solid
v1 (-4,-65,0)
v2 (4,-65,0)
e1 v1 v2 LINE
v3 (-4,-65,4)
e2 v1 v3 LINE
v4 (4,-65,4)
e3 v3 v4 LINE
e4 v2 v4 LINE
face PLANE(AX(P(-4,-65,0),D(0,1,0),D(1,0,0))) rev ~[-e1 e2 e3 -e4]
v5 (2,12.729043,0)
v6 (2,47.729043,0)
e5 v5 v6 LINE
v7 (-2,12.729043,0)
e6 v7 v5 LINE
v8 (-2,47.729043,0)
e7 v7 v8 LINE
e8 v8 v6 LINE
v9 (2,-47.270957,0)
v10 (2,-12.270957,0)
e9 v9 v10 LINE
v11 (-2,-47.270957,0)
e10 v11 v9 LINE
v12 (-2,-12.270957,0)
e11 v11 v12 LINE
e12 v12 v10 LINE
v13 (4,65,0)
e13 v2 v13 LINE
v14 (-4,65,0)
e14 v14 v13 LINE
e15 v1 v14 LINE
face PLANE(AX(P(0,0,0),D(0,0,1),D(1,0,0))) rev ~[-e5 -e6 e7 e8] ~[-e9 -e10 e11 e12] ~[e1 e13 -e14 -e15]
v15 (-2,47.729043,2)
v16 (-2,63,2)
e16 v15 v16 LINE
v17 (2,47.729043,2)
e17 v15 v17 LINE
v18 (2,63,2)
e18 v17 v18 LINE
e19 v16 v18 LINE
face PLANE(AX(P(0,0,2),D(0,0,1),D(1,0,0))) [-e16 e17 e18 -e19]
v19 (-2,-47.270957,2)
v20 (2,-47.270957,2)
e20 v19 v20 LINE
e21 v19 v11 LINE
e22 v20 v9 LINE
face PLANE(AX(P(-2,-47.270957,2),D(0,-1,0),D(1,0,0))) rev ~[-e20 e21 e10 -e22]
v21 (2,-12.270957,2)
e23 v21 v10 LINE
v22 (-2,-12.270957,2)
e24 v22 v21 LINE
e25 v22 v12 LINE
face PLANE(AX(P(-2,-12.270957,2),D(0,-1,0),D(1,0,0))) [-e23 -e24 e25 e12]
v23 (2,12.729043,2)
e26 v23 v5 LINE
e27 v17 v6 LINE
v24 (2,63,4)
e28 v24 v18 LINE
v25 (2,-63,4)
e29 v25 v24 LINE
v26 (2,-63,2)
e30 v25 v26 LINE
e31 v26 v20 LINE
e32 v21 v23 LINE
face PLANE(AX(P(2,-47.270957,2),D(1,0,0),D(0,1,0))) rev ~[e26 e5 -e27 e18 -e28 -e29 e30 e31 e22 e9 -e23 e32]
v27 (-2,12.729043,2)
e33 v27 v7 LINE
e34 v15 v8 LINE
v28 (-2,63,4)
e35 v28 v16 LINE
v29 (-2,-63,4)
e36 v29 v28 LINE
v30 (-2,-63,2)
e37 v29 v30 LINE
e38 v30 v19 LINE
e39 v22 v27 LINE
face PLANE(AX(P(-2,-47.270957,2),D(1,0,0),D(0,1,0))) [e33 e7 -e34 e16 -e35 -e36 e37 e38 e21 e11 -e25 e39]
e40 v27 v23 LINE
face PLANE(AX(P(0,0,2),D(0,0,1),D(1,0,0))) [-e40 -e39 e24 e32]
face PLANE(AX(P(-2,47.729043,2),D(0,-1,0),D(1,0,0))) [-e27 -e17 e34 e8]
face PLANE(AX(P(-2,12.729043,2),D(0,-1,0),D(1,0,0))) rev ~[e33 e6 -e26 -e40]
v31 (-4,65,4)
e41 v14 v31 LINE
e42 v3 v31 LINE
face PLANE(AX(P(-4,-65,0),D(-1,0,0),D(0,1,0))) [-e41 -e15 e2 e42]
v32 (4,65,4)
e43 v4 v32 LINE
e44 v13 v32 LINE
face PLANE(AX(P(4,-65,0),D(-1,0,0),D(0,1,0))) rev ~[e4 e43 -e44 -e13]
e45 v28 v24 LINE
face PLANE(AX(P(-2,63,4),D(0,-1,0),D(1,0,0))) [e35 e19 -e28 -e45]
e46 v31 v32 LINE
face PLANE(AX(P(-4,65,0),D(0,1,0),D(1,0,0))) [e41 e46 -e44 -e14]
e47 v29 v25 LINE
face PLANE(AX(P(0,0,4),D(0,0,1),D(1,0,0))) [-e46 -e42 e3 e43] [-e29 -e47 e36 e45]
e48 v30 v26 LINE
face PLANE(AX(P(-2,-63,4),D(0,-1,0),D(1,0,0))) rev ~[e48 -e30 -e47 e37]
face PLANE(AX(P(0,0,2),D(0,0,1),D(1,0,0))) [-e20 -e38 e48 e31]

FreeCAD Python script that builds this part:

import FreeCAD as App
import Part
import Sketcher


def add_polygon(sketch, points):
    """Adds a closed chain of lines whose ends are joined by coincident constraints."""
    first, n = sketch.GeometryCount, len(points)
    for a, b in zip(points, points[1:] + points[:1]):
        sketch.addGeometry(Part.LineSegment(App.Vector(*a, 0), App.Vector(*b, 0)), False)
    for i in range(n):
        sketch.addConstraint(Sketcher.Constraint("Coincident", first + i, 2, first + (i + 1) % n, 1))

doc = App.newDocument("Part")
body = doc.addObject("PartDesign::Body", "Body")

sketch1 = doc.addObject("Sketcher::SketchObject", "Sketch")
body.addObject(sketch1)
sketch1.AttachmentSupport = (doc.XY_Plane, [""])
sketch1.MapMode = "FlatFace"
add_polygon(sketch1, [(-4, 65), (-4, -65), (4, -65), (4, 65)])
sketch1.addConstraint([
    Sketcher.Constraint("Vertical", 0),
    Sketcher.Constraint("Horizontal", 1),
    Sketcher.Constraint("Vertical", 2),
    Sketcher.Constraint("Horizontal", 3),
    Sketcher.Constraint("Symmetric", 0, 2, 2, 2, -1, 1),
    Sketcher.Constraint("DistanceX", 1, 1, 1, 2, 8.0),
    Sketcher.Constraint("DistanceY", 0, 2, 0, 1, 130.0),
])
pad1 = doc.addObject("PartDesign::Pad", "Pad")
body.addObject(pad1)
pad1.Profile = sketch1
pad1.Length = 4

sketch2 = doc.addObject("Sketcher::SketchObject", "Sketch001")
body.addObject(sketch2)
sketch2.AttachmentSupport = (doc.XY_Plane, [""])
sketch2.MapMode = "FlatFace"
sketch2.AttachmentOffset = App.Placement(App.Vector(0, 0, 4), App.Rotation())
add_polygon(sketch2, [(-2, 63), (-2, -63), (2, -63), (2, 63)])
sketch2.addConstraint([
    Sketcher.Constraint("Vertical", 0),
    Sketcher.Constraint("Horizontal", 1),
    Sketcher.Constraint("Vertical", 2),
    Sketcher.Constraint("Horizontal", 3),
    Sketcher.Constraint("Symmetric", 0, 2, 2, 2, -1, 1),
    Sketcher.Constraint("DistanceX", 1, 1, 1, 2, 4.0),
    Sketcher.Constraint("DistanceY", 0, 2, 0, 1, 126.0),
])
pocket1 = doc.addObject("PartDesign::Pocket", "Pocket")
body.addObject(pocket1)
pocket1.Profile = sketch2
pocket1.Length = 2

sketch3 = doc.addObject("Sketcher::SketchObject", "Sketch002")
body.addObject(sketch3)
sketch3.AttachmentSupport = (doc.XY_Plane, [""])
sketch3.MapMode = "FlatFace"
sketch3.AttachmentOffset = App.Placement(App.Vector(0, 0, 2), App.Rotation())
add_polygon(sketch3, [(-2, -12.3), (-2, -47.3), (2, -47.3), (2, -12.3)])
add_polygon(sketch3, [(-2, 47.7), (-2, 12.7), (2, 12.7), (2, 47.7)])
sketch3.addConstraint([
    Sketcher.Constraint("Vertical", 0),
    Sketcher.Constraint("Horizontal", 1),
    Sketcher.Constraint("Vertical", 2),
    Sketcher.Constraint("Horizontal", 3),
    Sketcher.Constraint("Vertical", 4),
    Sketcher.Constraint("Horizontal", 5),
    Sketcher.Constraint("Vertical", 6),
    Sketcher.Constraint("Horizontal", 7),
    Sketcher.Constraint("Vertical", 3, 2, 4, 2),
    Sketcher.Constraint("Vertical", 2, 2, 5, 2),
    Sketcher.Constraint("Equal", 2, 4),
    Sketcher.Constraint("DistanceX", 1, 1, 1, 2, 4.0),
    Sketcher.Constraint("DistanceY", 0, 2, 0, 1, 35.0),
    Sketcher.Constraint("DistanceX", 0, 2, -1, 1, 2.0),
    Sketcher.Constraint("DistanceY", 3, 2, 4, 2, 25.0),
    Sketcher.Constraint("DistanceY", 0, 2, -1, 1, 47.270957),
])
pocket2 = doc.addObject("PartDesign::Pocket", "Pocket001")
body.addObject(pocket2)
pocket2.Profile = sketch3
pocket2.Type = "ThroughAll"

doc.recompute()
